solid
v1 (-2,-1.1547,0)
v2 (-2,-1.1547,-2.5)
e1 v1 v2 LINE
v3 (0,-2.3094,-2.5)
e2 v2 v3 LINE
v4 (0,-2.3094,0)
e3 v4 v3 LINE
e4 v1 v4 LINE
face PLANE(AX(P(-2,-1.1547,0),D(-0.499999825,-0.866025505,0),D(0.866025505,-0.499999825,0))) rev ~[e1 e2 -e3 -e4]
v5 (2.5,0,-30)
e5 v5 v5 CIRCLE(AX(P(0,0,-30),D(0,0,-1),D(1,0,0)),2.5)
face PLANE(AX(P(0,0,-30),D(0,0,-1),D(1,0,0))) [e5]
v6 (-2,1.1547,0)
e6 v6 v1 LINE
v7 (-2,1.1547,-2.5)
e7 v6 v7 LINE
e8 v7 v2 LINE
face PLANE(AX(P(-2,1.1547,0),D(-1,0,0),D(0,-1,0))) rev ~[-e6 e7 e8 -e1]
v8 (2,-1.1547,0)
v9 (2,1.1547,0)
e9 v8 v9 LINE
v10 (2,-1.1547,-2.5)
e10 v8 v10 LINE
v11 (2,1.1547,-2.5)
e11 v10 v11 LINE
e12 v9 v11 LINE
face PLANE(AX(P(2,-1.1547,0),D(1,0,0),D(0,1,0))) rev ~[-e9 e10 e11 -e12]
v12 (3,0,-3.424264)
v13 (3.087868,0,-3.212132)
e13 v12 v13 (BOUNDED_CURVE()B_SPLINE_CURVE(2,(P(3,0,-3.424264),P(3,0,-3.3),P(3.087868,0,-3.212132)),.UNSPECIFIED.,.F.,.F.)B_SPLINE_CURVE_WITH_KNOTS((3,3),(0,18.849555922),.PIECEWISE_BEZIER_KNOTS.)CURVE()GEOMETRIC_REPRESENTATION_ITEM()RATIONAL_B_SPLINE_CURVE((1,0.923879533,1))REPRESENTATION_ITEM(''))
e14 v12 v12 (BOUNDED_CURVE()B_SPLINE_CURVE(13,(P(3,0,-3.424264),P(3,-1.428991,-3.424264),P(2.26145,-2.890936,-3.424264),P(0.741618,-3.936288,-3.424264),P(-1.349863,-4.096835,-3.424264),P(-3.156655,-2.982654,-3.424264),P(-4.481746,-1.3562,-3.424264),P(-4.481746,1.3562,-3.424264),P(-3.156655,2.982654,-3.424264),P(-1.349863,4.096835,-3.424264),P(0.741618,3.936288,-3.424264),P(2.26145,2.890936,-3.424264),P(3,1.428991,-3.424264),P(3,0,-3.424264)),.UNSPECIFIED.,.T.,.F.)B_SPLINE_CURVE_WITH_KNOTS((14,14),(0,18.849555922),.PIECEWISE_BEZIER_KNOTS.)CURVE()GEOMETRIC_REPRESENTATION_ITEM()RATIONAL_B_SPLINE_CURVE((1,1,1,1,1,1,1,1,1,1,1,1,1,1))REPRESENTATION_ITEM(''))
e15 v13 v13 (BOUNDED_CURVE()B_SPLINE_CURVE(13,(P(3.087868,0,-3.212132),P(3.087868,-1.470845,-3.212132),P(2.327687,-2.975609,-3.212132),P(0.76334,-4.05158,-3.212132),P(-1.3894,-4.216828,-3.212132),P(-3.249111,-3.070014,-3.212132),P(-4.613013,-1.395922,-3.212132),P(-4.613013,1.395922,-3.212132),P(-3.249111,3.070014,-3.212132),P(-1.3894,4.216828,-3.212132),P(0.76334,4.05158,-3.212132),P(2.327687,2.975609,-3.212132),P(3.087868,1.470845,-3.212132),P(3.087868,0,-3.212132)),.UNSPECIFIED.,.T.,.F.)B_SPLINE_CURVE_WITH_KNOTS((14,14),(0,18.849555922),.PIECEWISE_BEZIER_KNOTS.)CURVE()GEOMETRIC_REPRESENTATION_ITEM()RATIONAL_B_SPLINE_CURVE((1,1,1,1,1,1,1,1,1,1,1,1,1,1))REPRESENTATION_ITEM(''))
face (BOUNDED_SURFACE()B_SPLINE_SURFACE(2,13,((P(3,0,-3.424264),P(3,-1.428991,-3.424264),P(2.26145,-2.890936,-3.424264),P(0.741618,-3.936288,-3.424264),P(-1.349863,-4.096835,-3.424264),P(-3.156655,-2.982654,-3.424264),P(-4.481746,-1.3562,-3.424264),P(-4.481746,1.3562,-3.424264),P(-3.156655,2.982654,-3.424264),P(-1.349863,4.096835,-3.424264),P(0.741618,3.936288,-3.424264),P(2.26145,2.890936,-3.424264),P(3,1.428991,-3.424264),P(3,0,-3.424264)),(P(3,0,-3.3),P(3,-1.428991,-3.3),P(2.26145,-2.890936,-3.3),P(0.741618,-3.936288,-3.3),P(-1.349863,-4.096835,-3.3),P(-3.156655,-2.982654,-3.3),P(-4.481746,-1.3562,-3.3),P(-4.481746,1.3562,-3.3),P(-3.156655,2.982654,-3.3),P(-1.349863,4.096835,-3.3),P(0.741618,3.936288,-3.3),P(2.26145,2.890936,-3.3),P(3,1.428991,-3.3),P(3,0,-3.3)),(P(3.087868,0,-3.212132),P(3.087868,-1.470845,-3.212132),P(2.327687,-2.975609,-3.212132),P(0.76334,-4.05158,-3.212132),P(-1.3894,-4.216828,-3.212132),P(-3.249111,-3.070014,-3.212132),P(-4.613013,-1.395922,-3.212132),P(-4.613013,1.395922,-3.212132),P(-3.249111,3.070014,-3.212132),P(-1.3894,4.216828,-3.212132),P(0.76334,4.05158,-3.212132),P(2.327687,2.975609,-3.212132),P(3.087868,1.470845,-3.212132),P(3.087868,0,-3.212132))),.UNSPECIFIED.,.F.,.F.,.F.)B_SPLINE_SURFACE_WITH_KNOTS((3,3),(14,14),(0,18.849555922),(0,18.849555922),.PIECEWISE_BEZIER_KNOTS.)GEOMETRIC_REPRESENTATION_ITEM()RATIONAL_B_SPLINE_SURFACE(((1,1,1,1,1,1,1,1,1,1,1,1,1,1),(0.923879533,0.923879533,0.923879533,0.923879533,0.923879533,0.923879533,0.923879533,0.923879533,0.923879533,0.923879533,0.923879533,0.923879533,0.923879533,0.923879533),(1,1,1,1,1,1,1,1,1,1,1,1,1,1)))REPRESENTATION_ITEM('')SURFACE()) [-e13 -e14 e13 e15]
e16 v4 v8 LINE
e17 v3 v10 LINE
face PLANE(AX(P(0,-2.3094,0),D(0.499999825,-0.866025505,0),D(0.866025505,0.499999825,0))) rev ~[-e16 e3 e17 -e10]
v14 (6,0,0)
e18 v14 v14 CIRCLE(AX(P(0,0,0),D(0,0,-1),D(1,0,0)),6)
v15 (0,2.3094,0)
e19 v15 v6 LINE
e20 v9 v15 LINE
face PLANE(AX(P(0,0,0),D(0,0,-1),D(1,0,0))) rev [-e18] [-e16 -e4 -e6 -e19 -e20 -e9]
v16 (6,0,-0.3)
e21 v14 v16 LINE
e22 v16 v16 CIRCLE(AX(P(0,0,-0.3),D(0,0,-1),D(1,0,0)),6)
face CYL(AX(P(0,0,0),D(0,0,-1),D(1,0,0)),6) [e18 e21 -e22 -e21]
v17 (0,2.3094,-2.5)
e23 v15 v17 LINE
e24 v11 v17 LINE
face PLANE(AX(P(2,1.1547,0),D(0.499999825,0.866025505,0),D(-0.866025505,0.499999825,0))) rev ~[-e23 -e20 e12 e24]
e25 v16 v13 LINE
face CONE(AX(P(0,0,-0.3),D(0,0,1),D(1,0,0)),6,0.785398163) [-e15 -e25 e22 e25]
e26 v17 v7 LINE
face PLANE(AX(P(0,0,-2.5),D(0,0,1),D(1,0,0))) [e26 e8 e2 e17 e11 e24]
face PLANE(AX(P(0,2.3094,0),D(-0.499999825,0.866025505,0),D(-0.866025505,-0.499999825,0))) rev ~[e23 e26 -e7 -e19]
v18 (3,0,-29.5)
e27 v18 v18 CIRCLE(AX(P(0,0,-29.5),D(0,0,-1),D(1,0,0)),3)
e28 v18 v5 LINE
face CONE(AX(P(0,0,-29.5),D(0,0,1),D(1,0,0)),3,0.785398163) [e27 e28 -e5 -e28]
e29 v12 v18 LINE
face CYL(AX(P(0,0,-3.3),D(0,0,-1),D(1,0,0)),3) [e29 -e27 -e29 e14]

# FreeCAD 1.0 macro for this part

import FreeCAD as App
import Part
import Sketcher
Q = App.Units.Quantity


def edges_at(feature, points):
    """Names of the edges that pass closest to the given points."""
    edges = feature.Shape.Edges
    near = lambda p: min(range(len(edges)), key=lambda i: edges[i].distToShape(Part.Vertex(*p))[0])
    return sorted({f"Edge{near(p) + 1}" for p in points})


def add_polygon(sketch, points):
    """Adds a closed chain of lines whose ends are joined by coincident constraints."""
    first, n = sketch.GeometryCount, len(points)
    for a, b in zip(points, points[1:] + points[:1]):
        sketch.addGeometry(Part.LineSegment(App.Vector(*a, 0), App.Vector(*b, 0)), False)
    for i in range(n):
        sketch.addConstraint(Sketcher.Constraint("Coincident", first + i, 2, first + (i + 1) % n, 1))

doc = App.newDocument("Part")
params = doc.addObject("Spreadsheet::Sheet", "Params")
for row, (alias, value) in enumerate([
    ("sketch1_width", "3 mm"),
    ("sketch1_width2", "6 mm"),
    ("sketch1_height", "30 mm"),
    ("sketch1_height2", "0.3 mm"),
    ("revolution_angle", "360 deg"),
    ("pocket1_length", "2.5 mm"),
    ("fillet_radius", "0.3 mm"),
    ("chamfer_size", "0.5 mm"),
], start=1):
    params.set(f"A{row}", alias)
    params.set(f"B{row}", "=" + value)
    params.setAlias(f"B{row}", alias)

body = doc.addObject("PartDesign::Body", "Body")

sketch1 = body.newObject("Sketcher::SketchObject", "Sketch")
sketch1.AttachmentSupport = (doc.getObject("XZ_Plane"), [""])
sketch1.MapMode = "FlatFace"
add_polygon(sketch1, [(3, -3.3), (3, -30), (0, -30), (0, 0), (6, 0), (6, -0.3)])
sketch1.addConstraint([
    Sketcher.Constraint("Vertical", 0),
    Sketcher.Constraint("Horizontal", 1),
    Sketcher.Constraint("Vertical", 2),
    Sketcher.Constraint("Horizontal", 3),
    Sketcher.Constraint("Vertical", 4),
    Sketcher.Constraint("Coincident", 2, 2, -1, 1),
    Sketcher.Constraint("DistanceX", 1, 2, 1, 1, Q("3 mm")),
    Sketcher.Constraint("DistanceX", 3, 1, 3, 2, Q("6 mm")),
    Sketcher.Constraint("DistanceY", 2, 1, 2, 2, Q("30 mm")),
    Sketcher.Constraint("DistanceY", 4, 2, 4, 1, Q("0.3 mm")),
    Sketcher.Constraint("DistanceY", 5, 2, 4, 2, Q("3 mm")),
])
sketch1.setExpression("Constraints[12]", "Params.sketch1_width")
sketch1.setExpression("Constraints[13]", "Params.sketch1_width2")
sketch1.setExpression("Constraints[14]", "Params.sketch1_height")
sketch1.setExpression("Constraints[15]", "Params.sketch1_height2")
revolution = body.newObject("PartDesign::Revolution", "Revolution")
revolution.Profile = sketch1
revolution.ReferenceAxis = (sketch1, ["V_Axis"])
revolution.setExpression("Angle", "Params.revolution_angle")

sketch2 = body.newObject("Sketcher::SketchObject", "Sketch001")
sketch2.AttachmentSupport = (doc.getObject("XY_Plane"), [""])
sketch2.MapMode = "FlatFace"
add_polygon(sketch2, [(0, 2.3), (-2, 1.2), (-2, -1.2), (0, -2.3), (2, -1.2), (2, 1.2)])
sketch2.addConstraint([
    Sketcher.Constraint("Vertical", 1),
    Sketcher.Constraint("Vertical", 4),
    Sketcher.Constraint("Symmetric", 0, 2, 3, 2, -1, 1),
    Sketcher.Constraint("Symmetric", 2, 2, 5, 2, -1, 1),
    Sketcher.Constraint("PointOnObject", 2, 2, -2),
    Sketcher.Constraint("Parallel", 2, 5),
    Sketcher.Constraint("Horizontal", 1, 2, 3, 2),
    Sketcher.Constraint("DistanceX", 1, 2, 3, 2, Q("4 mm")),
    Sketcher.Constraint("Angle", 0, Q("-150 deg")),
    Sketcher.Constraint("DistanceY", 1, 2, 1, 1, Q("2.3094 mm")),
])
pocket1 = body.newObject("PartDesign::Pocket", "Pocket")
pocket1.Profile = sketch2
pocket1.setExpression("Length", "Params.pocket1_length")
doc.recompute()

fillet = body.newObject("PartDesign::Fillet", "Fillet")
fillet.Base = (pocket1, edges_at(pocket1, [(-3, 0, -3.3)]))
fillet.setExpression("Radius", "Params.fillet_radius")
doc.recompute()

chamfer = body.newObject("PartDesign::Chamfer", "Chamfer")
chamfer.Base = (fillet, edges_at(fillet, [(-3, 0, -30)]))
chamfer.setExpression("Size", "Params.chamfer_size")

doc.recompute()
